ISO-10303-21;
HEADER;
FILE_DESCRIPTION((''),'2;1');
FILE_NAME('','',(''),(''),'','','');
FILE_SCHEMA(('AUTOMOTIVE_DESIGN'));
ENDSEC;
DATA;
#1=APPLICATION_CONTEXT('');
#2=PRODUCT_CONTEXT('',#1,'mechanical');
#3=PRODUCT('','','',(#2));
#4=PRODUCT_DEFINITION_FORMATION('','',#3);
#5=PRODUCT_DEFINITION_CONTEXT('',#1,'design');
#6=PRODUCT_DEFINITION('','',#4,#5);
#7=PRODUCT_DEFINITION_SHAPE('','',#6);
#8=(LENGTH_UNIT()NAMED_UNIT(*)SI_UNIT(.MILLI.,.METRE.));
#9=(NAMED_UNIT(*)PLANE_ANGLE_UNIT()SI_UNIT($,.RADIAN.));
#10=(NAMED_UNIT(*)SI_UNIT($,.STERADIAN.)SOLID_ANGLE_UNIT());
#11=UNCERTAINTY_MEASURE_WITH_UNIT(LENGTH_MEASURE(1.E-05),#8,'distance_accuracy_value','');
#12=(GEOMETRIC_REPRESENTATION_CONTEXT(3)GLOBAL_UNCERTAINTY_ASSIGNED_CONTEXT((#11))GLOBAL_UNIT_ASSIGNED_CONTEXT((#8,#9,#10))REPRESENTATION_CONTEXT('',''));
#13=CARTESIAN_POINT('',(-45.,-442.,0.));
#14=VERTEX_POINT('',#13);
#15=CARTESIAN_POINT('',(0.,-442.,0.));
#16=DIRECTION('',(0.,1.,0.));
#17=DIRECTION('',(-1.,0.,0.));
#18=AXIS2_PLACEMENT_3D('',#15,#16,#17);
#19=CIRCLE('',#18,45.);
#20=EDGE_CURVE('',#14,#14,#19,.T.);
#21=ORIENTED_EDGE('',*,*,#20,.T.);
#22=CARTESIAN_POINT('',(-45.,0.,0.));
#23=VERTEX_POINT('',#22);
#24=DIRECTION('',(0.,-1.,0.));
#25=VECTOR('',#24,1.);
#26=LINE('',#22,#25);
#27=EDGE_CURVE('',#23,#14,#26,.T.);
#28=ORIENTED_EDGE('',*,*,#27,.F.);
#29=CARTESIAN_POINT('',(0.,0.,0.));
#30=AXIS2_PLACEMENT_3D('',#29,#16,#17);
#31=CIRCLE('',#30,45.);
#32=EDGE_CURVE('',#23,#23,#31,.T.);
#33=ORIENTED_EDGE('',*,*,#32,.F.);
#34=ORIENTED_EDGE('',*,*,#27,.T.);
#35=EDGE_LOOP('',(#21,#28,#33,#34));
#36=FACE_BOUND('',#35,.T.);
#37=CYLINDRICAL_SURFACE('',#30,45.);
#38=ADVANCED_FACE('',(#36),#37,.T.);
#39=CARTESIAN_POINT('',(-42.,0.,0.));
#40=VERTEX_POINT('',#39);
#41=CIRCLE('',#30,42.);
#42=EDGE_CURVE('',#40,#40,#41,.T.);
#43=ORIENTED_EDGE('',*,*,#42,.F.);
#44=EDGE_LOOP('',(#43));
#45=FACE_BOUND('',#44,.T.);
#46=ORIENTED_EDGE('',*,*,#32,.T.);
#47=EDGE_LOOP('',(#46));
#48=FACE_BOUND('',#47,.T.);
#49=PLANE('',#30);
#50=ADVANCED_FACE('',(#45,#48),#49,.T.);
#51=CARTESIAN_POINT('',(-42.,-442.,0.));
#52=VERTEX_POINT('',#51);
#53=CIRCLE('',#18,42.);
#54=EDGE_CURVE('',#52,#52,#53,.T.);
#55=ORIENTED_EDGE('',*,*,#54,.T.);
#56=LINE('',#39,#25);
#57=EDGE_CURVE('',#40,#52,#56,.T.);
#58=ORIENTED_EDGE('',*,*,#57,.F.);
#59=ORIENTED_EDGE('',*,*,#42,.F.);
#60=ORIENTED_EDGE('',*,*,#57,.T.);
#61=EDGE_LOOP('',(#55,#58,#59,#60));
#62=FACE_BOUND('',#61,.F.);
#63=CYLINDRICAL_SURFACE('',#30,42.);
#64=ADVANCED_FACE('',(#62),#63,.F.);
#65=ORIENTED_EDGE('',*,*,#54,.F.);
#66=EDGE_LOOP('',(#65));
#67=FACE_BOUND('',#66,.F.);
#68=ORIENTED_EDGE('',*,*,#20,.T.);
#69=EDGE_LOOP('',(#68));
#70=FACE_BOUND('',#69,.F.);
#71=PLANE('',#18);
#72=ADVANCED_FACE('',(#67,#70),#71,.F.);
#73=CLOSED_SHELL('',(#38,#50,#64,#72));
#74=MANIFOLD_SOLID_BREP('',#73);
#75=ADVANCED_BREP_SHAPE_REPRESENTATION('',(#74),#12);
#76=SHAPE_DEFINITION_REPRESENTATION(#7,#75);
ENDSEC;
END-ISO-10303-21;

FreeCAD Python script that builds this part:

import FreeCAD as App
import Part
import Sketcher

V = App.Vector
Q = App.Units.Quantity

doc = App.newDocument("Part")
params = doc.addObject("Spreadsheet::Sheet", "Params")
for row, (alias, value) in enumerate([
    ("sketch1_diameter", "90 mm"),
    ("sketch1_diameter2", "84 mm"),
    ("pad1_length", "442 mm"),
], start=1):
    params.set(f"A{row}", alias)
    params.set(f"B{row}", "=" + value)
    params.setAlias(f"B{row}", alias)

body = doc.addObject("PartDesign::Body", "Body")

# Sketch on XZ plane
sketch1 = doc.addObject("Sketcher::SketchObject", "Sketch")
body.addObject(sketch1)
sketch1.AttachmentSupport = (doc.XZ_Plane, [""])
sketch1.MapMode = "FlatFace"
sketch1.addGeometry([
    Part.Circle(V(0, 0, 0), V(0, 0, 1), 45),
    Part.Circle(V(0, 0, 0), V(0, 0, 1), 42),
], False)
sketch1.addConstraint([
    Sketcher.Constraint("Coincident", 0, 3, -1, 1),
    Sketcher.Constraint("Coincident", 1, 3, -1, 1),
    Sketcher.Constraint("Diameter", 0, Q("90 mm")),
    Sketcher.Constraint("Diameter", 1, Q("84 mm")),
])
sketch1.setExpression("Constraints[2]", "Params.sketch1_diameter")
sketch1.setExpression("Constraints[3]", "Params.sketch1_diameter2")
pad1 = doc.addObject("PartDesign::Pad", "Pad")
body.addObject(pad1)
pad1.Profile = sketch1
pad1.setExpression("Length", "Params.pad1_length")

doc.recompute()
